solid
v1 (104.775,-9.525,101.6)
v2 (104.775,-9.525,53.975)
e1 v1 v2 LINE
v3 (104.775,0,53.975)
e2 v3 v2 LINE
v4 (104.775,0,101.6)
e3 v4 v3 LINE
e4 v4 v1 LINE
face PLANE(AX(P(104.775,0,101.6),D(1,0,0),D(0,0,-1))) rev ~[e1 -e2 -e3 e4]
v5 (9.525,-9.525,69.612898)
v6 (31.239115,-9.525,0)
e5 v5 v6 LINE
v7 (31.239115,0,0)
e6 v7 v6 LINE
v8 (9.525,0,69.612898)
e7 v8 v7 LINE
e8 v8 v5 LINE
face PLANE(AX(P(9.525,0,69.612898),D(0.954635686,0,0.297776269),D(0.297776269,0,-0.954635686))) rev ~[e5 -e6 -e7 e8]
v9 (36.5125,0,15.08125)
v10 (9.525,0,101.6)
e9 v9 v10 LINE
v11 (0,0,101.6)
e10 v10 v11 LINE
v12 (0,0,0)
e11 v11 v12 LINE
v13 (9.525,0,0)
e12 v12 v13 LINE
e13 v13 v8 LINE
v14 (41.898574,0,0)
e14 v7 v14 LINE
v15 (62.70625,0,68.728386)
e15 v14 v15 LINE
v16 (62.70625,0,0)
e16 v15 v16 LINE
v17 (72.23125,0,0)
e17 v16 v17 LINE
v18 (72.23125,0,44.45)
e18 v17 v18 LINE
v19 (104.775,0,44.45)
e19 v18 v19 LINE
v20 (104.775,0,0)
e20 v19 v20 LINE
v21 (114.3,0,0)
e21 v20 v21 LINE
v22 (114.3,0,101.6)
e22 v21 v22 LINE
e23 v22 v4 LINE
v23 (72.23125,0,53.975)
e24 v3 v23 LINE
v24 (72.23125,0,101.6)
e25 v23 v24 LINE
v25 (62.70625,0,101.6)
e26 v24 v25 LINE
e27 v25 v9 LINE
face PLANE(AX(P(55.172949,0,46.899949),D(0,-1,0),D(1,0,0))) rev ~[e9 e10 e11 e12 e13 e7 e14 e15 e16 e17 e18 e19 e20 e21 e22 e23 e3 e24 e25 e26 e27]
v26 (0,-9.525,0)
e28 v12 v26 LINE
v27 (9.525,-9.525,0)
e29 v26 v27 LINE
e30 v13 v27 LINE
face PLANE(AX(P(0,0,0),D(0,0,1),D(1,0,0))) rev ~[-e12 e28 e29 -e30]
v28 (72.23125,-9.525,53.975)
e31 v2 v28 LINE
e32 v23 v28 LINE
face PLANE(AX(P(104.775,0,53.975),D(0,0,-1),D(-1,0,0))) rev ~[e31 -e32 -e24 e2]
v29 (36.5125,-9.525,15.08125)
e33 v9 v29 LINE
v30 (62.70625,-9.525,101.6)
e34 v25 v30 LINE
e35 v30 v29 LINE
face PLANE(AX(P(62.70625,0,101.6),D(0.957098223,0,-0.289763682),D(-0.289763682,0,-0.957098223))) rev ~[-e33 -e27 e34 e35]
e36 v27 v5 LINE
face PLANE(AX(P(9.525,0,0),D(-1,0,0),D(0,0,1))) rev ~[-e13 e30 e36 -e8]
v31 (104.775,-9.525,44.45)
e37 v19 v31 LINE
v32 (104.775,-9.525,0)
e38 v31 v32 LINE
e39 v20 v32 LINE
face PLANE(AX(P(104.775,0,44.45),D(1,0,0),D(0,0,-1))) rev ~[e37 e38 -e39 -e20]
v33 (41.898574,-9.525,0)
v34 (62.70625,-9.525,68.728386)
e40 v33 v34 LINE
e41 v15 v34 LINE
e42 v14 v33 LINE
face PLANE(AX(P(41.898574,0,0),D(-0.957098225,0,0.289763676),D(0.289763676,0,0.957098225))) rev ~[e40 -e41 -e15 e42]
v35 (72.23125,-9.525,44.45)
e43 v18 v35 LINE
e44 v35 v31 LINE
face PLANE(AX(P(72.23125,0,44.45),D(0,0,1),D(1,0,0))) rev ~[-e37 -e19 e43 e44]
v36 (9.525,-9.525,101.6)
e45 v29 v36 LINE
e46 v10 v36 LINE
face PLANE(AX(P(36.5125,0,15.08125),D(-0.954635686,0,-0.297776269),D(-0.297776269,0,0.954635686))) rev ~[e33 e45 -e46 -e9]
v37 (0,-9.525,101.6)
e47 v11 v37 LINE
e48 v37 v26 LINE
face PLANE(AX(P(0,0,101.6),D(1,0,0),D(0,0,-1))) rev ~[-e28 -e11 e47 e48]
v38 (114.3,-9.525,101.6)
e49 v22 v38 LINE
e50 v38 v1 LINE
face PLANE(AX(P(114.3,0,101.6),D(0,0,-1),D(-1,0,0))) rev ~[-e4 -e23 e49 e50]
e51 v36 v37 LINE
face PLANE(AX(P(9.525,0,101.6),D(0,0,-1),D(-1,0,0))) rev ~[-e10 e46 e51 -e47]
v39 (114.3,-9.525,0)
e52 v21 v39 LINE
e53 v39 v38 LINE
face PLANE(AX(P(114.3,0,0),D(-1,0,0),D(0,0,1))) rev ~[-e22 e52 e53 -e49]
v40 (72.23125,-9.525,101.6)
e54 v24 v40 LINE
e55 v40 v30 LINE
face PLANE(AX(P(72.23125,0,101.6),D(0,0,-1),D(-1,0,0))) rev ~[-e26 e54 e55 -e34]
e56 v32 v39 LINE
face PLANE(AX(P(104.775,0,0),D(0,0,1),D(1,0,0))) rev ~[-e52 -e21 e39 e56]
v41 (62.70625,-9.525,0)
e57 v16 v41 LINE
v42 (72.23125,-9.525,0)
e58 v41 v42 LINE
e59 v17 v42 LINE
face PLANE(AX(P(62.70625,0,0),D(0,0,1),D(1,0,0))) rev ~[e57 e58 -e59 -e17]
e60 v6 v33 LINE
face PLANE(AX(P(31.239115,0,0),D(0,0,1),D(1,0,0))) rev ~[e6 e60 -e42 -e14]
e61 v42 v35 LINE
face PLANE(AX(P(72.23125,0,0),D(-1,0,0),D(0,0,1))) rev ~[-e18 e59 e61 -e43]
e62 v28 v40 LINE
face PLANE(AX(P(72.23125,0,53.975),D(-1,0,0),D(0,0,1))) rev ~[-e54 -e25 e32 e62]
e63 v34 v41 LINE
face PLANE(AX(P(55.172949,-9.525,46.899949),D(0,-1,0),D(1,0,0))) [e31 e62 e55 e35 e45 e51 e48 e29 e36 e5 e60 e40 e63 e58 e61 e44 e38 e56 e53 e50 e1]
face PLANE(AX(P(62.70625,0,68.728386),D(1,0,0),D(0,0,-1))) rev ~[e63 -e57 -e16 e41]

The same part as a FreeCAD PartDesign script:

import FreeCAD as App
import Part
import Sketcher
from FreeCAD import Vector
Q = App.Units.Quantity

doc = App.newDocument("Part")
body = doc.addObject("PartDesign::Body", "Body")

# Sketch on XZ plane
sketch1 = body.newObject("Sketcher::SketchObject", "Sketch")
sketch1.AttachmentSupport = (doc.getObject("XZ_Plane"), [""])
sketch1.MapMode = "FlatFace"
sketch1.addGeometry(Part.LineSegment(Vector(0, 102, 0), Vector(0, 0, 0)), False)
sketch1.addGeometry(Part.LineSegment(Vector(0, 0, 0), Vector(10, 0, 0)), False)
sketch1.addGeometry(Part.LineSegment(Vector(10, 0, 0), Vector(10, 70, 0)), False)
sketch1.addGeometry(Part.LineSegment(Vector(10, 70, 0), Vector(31, 0, 0)), False)
sketch1.addGeometry(Part.LineSegment(Vector(31, 0, 0), Vector(42, 0, 0)), False)
sketch1.addGeometry(Part.LineSegment(Vector(42, 0, 0), Vector(63, 69, 0)), False)
sketch1.addGeometry(Part.LineSegment(Vector(63, 69, 0), Vector(63, 0, 0)), False)
sketch1.addGeometry(Part.LineSegment(Vector(63, 0, 0), Vector(72, 0, 0)), False)
sketch1.addGeometry(Part.LineSegment(Vector(72, 0, 0), Vector(72, 44, 0)), False)
sketch1.addGeometry(Part.LineSegment(Vector(72, 44, 0), Vector(105, 44, 0)), False)
sketch1.addGeometry(Part.LineSegment(Vector(105, 44, 0), Vector(105, 0, 0)), False)
sketch1.addGeometry(Part.LineSegment(Vector(105, 0, 0), Vector(114, 0, 0)), False)
sketch1.addGeometry(Part.LineSegment(Vector(114, 0, 0), Vector(114, 102, 0)), False)
sketch1.addGeometry(Part.LineSegment(Vector(114, 102, 0), Vector(105, 102, 0)), False)
sketch1.addGeometry(Part.LineSegment(Vector(105, 102, 0), Vector(105, 54, 0)), False)
sketch1.addGeometry(Part.LineSegment(Vector(105, 54, 0), Vector(72, 54, 0)), False)
sketch1.addGeometry(Part.LineSegment(Vector(72, 54, 0), Vector(72, 102, 0)), False)
sketch1.addGeometry(Part.LineSegment(Vector(72, 102, 0), Vector(63, 102, 0)), False)
sketch1.addGeometry(Part.LineSegment(Vector(63, 102, 0), Vector(37, 15, 0)), False)
sketch1.addGeometry(Part.LineSegment(Vector(37, 15, 0), Vector(10, 102, 0)), False)
sketch1.addGeometry(Part.LineSegment(Vector(10, 102, 0), Vector(0, 102, 0)), False)
sketch1.addConstraint(Sketcher.Constraint("Coincident", 0, 2, 1, 1))
sketch1.addConstraint(Sketcher.Constraint("Coincident", 1, 2, 2, 1))
sketch1.addConstraint(Sketcher.Constraint("Coincident", 2, 2, 3, 1))
sketch1.addConstraint(Sketcher.Constraint("Coincident", 3, 2, 4, 1))
sketch1.addConstraint(Sketcher.Constraint("Coincident", 4, 2, 5, 1))
sketch1.addConstraint(Sketcher.Constraint("Coincident", 5, 2, 6, 1))
sketch1.addConstraint(Sketcher.Constraint("Coincident", 6, 2, 7, 1))
sketch1.addConstraint(Sketcher.Constraint("Coincident", 7, 2, 8, 1))
sketch1.addConstraint(Sketcher.Constraint("Coincident", 8, 2, 9, 1))
sketch1.addConstraint(Sketcher.Constraint("Coincident", 9, 2, 10, 1))
sketch1.addConstraint(Sketcher.Constraint("Coincident", 10, 2, 11, 1))
sketch1.addConstraint(Sketcher.Constraint("Coincident", 11, 2, 12, 1))
sketch1.addConstraint(Sketcher.Constraint("Coincident", 12, 2, 13, 1))
sketch1.addConstraint(Sketcher.Constraint("Coincident", 13, 2, 14, 1))
sketch1.addConstraint(Sketcher.Constraint("Coincident", 14, 2, 15, 1))
sketch1.addConstraint(Sketcher.Constraint("Coincident", 15, 2, 16, 1))
sketch1.addConstraint(Sketcher.Constraint("Coincident", 16, 2, 17, 1))
sketch1.addConstraint(Sketcher.Constraint("Coincident", 17, 2, 18, 1))
sketch1.addConstraint(Sketcher.Constraint("Coincident", 18, 2, 19, 1))
sketch1.addConstraint(Sketcher.Constraint("Coincident", 19, 2, 20, 1))
sketch1.addConstraint(Sketcher.Constraint("Coincident", 20, 2, 0, 1))
sketch1.addConstraint(Sketcher.Constraint("Vertical", 0))
sketch1.addConstraint(Sketcher.Constraint("Horizontal", 1))
sketch1.addConstraint(Sketcher.Constraint("Vertical", 2))
sketch1.addConstraint(Sketcher.Constraint("Horizontal", 4))
sketch1.addConstraint(Sketcher.Constraint("Vertical", 6))
sketch1.addConstraint(Sketcher.Constraint("Horizontal", 7))
sketch1.addConstraint(Sketcher.Constraint("Vertical", 8))
sketch1.addConstraint(Sketcher.Constraint("Horizontal", 9))
sketch1.addConstraint(Sketcher.Constraint("Vertical", 10))
sketch1.addConstraint(Sketcher.Constraint("Horizontal", 11))
sketch1.addConstraint(Sketcher.Constraint("Vertical", 12))
sketch1.addConstraint(Sketcher.Constraint("Horizontal", 13))
sketch1.addConstraint(Sketcher.Constraint("Vertical", 14))
sketch1.addConstraint(Sketcher.Constraint("Horizontal", 15))
sketch1.addConstraint(Sketcher.Constraint("Vertical", 16))
sketch1.addConstraint(Sketcher.Constraint("Horizontal", 17))
sketch1.addConstraint(Sketcher.Constraint("Horizontal", 20))
sketch1.addConstraint(Sketcher.Constraint("Coincident", 0, 2, -1, 1))
sketch1.addConstraint(Sketcher.Constraint("PointOnObject", 3, 2, -1))
sketch1.addConstraint(Sketcher.Constraint("PointOnObject", 6, 2, -1))
sketch1.addConstraint(Sketcher.Constraint("PointOnObject", 10, 2, -1))
sketch1.addConstraint(Sketcher.Constraint("Parallel", 5, 18))
sketch1.addConstraint(Sketcher.Constraint("Parallel", 3, 19))
sketch1.addConstraint(Sketcher.Constraint("Horizontal", 13, 2, 16, 2))
sketch1.addConstraint(Sketcher.Constraint("Horizontal", 17, 2, 19, 2))
sketch1.addConstraint(Sketcher.Constraint("Vertical", 10, 2, 13, 2))
sketch1.addConstraint(Sketcher.Constraint("Vertical", 8, 2, 15, 2))
sketch1.addConstraint(Sketcher.Constraint("Vertical", 6, 2, 17, 2))
sketch1.addConstraint(Sketcher.Constraint("Vertical", 2, 2, 19, 2))
sketch1.addConstraint(Sketcher.Constraint("Equal", 1, 7))
sketch1.addConstraint(Sketcher.Constraint("Equal", 7, 11))
sketch1.addConstraint(Sketcher.Constraint("DistanceY", 0, 2, 0, 1, Q("4 in")))
sketch1.addConstraint(Sketcher.Constraint("DistanceY", 8, 1, 8, 2, Q("1.75 in")))
sketch1.addConstraint(Sketcher.Constraint("DistanceX", -1, 1, 11, 2, Q("4.5 in")))
sketch1.addConstraint(Sketcher.Constraint("DistanceX", 1, 1, 1, 2, Q("0.375 in")))
sketch1.addConstraint(Sketcher.Constraint("DistanceX", 9, 1, 9, 2, Q("1.28125 in")))
sketch1.addConstraint(Sketcher.Constraint("DistanceY", 14, 2, 14, 1, Q("1.875 in")))
sketch1.addConstraint(Sketcher.Constraint("DistanceX", -1, 1, 18, 2, Q("1.4375 in")))
sketch1.addConstraint(Sketcher.Constraint("DistanceY", -1, 1, 18, 2, Q("0.59375 in")))
sketch1.addConstraint(Sketcher.Constraint("DistanceY", 2, 1, 2, 2, 69.612898))
sketch1.addConstraint(Sketcher.Constraint("DistanceX", 4, 2, 5, 2, Q("0.8191998 in")))
pad1 = body.newObject("PartDesign::Pad", "Pad")
pad1.Profile = sketch1
pad1.Length = Q("0.375 in")

doc.recompute()
